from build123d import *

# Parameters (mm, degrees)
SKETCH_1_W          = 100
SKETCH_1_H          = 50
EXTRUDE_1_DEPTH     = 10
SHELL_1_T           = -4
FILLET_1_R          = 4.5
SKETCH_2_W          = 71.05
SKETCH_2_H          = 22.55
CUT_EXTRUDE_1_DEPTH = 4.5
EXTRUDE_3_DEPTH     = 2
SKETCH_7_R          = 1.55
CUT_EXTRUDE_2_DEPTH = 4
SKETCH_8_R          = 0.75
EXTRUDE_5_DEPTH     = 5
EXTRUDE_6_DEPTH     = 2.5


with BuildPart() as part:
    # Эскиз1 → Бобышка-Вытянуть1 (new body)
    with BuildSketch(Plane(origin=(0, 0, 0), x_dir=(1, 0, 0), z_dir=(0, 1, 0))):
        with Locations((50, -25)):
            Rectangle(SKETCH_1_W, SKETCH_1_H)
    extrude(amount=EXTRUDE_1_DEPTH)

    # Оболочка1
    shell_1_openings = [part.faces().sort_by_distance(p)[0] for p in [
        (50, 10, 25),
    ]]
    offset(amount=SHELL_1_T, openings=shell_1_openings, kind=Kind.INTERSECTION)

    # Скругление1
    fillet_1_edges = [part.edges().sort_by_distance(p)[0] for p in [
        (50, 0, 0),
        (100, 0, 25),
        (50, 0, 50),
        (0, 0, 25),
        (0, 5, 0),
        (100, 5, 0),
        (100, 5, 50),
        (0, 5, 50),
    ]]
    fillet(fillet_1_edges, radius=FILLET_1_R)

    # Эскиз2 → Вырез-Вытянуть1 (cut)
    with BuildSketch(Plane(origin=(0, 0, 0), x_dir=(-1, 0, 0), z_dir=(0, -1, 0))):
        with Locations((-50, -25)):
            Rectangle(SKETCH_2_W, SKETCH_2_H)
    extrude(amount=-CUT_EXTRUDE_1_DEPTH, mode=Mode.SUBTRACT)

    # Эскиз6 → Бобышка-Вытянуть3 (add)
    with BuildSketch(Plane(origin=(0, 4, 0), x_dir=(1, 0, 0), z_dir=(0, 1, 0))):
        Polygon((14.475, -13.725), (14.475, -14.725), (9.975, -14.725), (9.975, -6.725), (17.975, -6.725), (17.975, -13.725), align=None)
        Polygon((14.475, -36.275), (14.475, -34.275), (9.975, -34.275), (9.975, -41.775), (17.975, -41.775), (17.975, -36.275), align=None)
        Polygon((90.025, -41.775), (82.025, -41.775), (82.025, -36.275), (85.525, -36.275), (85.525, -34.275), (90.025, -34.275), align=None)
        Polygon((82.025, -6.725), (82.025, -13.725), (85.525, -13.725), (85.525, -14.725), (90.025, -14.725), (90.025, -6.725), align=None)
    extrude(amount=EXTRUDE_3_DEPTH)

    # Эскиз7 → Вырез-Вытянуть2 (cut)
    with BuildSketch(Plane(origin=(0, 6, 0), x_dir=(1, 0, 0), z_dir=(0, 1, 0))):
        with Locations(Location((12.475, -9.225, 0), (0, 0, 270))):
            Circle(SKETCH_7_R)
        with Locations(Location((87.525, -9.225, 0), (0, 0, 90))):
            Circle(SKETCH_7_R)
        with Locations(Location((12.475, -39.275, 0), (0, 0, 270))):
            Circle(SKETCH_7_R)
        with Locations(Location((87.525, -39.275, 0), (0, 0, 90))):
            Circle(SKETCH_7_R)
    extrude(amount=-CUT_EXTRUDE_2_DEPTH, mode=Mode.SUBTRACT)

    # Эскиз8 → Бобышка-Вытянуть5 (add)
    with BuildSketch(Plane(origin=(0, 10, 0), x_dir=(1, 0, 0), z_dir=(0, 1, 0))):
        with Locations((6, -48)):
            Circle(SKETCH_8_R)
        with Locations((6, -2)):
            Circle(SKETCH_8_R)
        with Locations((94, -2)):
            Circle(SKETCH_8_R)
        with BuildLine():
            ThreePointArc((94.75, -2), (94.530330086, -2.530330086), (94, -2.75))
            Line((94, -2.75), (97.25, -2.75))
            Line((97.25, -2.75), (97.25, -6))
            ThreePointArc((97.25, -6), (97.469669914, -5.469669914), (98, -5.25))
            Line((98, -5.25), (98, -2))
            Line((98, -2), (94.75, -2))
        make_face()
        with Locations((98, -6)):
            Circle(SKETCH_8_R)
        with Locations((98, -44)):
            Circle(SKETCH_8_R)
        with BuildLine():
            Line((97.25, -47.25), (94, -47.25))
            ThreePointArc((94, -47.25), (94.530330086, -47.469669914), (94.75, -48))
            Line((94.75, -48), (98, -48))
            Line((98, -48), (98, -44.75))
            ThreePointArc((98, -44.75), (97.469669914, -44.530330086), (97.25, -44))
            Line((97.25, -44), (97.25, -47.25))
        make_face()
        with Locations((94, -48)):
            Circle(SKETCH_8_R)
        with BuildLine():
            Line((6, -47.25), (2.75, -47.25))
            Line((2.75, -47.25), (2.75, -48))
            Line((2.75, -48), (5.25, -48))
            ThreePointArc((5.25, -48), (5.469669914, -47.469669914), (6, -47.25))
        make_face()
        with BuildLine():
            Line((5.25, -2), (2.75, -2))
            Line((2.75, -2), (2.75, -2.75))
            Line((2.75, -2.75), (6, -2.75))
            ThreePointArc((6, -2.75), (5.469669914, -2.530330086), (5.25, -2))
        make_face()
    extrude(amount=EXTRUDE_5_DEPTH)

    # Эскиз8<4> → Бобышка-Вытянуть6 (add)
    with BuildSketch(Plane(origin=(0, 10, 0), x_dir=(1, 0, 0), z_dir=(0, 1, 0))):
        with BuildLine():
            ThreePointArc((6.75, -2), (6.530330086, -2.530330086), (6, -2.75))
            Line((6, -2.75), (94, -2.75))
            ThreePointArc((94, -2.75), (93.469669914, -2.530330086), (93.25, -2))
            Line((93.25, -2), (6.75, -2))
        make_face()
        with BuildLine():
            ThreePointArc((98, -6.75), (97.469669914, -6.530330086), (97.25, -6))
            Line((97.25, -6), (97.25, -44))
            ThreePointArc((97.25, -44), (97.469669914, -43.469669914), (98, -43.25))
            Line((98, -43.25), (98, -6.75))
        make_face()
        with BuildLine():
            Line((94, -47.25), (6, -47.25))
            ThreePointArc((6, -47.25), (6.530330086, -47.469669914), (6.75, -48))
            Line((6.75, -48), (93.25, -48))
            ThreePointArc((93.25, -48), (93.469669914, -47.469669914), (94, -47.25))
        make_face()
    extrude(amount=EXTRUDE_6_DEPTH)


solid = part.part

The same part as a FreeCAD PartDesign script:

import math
import FreeCAD as App
import Part
import Sketcher
from FreeCAD import Vector
Q = App.Units.Quantity


def edges_at(feature, points):
    """Names of the edges that pass closest to the given points."""
    edges = feature.Shape.Edges
    near = lambda p: min(range(len(edges)), key=lambda i: edges[i].distToShape(Part.Vertex(*p))[0])
    return sorted({f"Edge{near(p) + 1}" for p in points})


def faces_at(feature, points):
    """Names of the faces that lie closest to the given points."""
    faces = feature.Shape.Faces
    near = lambda p: min(range(len(faces)), key=lambda i: faces[i].distToShape(Part.Vertex(*p))[0])
    return sorted({f"Face{near(p) + 1}" for p in points})

doc = App.newDocument("Part")
body = doc.addObject("PartDesign::Body", "Body")

sketch1 = doc.addObject("Sketcher::SketchObject", "Sketch")
body.addObject(sketch1)
sketch1.AttachmentSupport = (doc.XZ_Plane, [""])
sketch1.MapMode = "FlatFace"
sketch1.addGeometry(Part.LineSegment(Vector(0, 0, 0), Vector(0, 50, 0)), False)
sketch1.addGeometry(Part.LineSegment(Vector(0, 50, 0), Vector(100, 50, 0)), False)
sketch1.addGeometry(Part.LineSegment(Vector(100, 50, 0), Vector(100, 0, 0)), False)
sketch1.addGeometry(Part.LineSegment(Vector(100, 0, 0), Vector(0, 0, 0)), False)
sketch1.addConstraint(Sketcher.Constraint("Coincident", 0, 2, 1, 1))
sketch1.addConstraint(Sketcher.Constraint("Coincident", 1, 2, 2, 1))
sketch1.addConstraint(Sketcher.Constraint("Coincident", 2, 2, 3, 1))
sketch1.addConstraint(Sketcher.Constraint("Coincident", 3, 2, 0, 1))
sketch1.addConstraint(Sketcher.Constraint("Vertical", 0))
sketch1.addConstraint(Sketcher.Constraint("Horizontal", 1))
sketch1.addConstraint(Sketcher.Constraint("Vertical", 2))
sketch1.addConstraint(Sketcher.Constraint("Horizontal", 3))
sketch1.addConstraint(Sketcher.Constraint("Coincident", 3, 2, -1, 1))
sketch1.addConstraint(Sketcher.Constraint("DistanceX", 1, 1, 1, 2, Q("100 mm")))
sketch1.addConstraint(Sketcher.Constraint("DistanceY", 0, 1, 0, 2, Q("50 mm")))
pad1 = doc.addObject("PartDesign::Pad", "Pad")
body.addObject(pad1)
pad1.Profile = sketch1
pad1.Length = 10
pad1.Reversed = True
doc.recompute()

thickness = doc.addObject("PartDesign::Thickness", "Thickness")
body.addObject(thickness)
thickness.Base = (pad1, faces_at(pad1, [(50, 10, 25)]))
thickness.Value = 4
thickness.Reversed = True
thickness.Join = "Intersection"
doc.recompute()

fillet = doc.addObject("PartDesign::Fillet", "Fillet")
body.addObject(fillet)
fillet.Base = (thickness, edges_at(thickness, [
    (50, 0, 0),
    (100, 0, 25),
    (50, 0, 50),
    (0, 0, 25),
    (0, 5, 0),
    (100, 5, 0),
    (100, 5, 50),
    (0, 5, 50),
]))
fillet.Radius = 4.5

sketch2 = doc.addObject("Sketcher::SketchObject", "Sketch001")
body.addObject(sketch2)
sketch2.AttachmentSupport = (doc.XZ_Plane, [""])
sketch2.MapMode = "FlatFace"
sketch2.addGeometry(Part.LineSegment(Vector(86, 14, 0), Vector(86, 36, 0)), False)
sketch2.addGeometry(Part.LineSegment(Vector(86, 36, 0), Vector(14, 36, 0)), False)
sketch2.addGeometry(Part.LineSegment(Vector(14, 36, 0), Vector(14, 14, 0)), False)
sketch2.addGeometry(Part.LineSegment(Vector(14, 14, 0), Vector(86, 14, 0)), False)
sketch2.addConstraint(Sketcher.Constraint("Coincident", 0, 2, 1, 1))
sketch2.addConstraint(Sketcher.Constraint("Coincident", 1, 2, 2, 1))
sketch2.addConstraint(Sketcher.Constraint("Coincident", 2, 2, 3, 1))
sketch2.addConstraint(Sketcher.Constraint("Coincident", 3, 2, 0, 1))
sketch2.addConstraint(Sketcher.Constraint("Vertical", 0))
sketch2.addConstraint(Sketcher.Constraint("Horizontal", 1))
sketch2.addConstraint(Sketcher.Constraint("Vertical", 2))
sketch2.addConstraint(Sketcher.Constraint("Horizontal", 3))
sketch2.addConstraint(Sketcher.Constraint("DistanceX", 1, 2, 1, 1, Q("71.05 mm")))
sketch2.addConstraint(Sketcher.Constraint("DistanceY", 0, 1, 0, 2, Q("22.55 mm")))
sketch2.addConstraint(Sketcher.Constraint("DistanceX", -1, 1, 0, 2, Q("85.525 mm")))
sketch2.addConstraint(Sketcher.Constraint("DistanceY", -1, 1, 0, 2, Q("36.275 mm")))
pocket1 = doc.addObject("PartDesign::Pocket", "Pocket")
body.addObject(pocket1)
pocket1.Profile = sketch2
pocket1.Length = 4.5

sketch3 = doc.addObject("Sketcher::SketchObject", "Sketch002")
body.addObject(sketch3)
sketch3.AttachmentSupport = (doc.XZ_Plane, [""])
sketch3.MapMode = "FlatFace"
sketch3.AttachmentOffset = App.Placement(Vector(0, 0, -4), App.Rotation())
sketch3.addGeometry(Part.LineSegment(Vector(14.5, 14.7, 0), Vector(14.5, 13.7, 0)), False)
sketch3.addGeometry(Part.LineSegment(Vector(14.5, 13.7, 0), Vector(18, 13.7, 0)), False)
sketch3.addGeometry(Part.LineSegment(Vector(18, 13.7, 0), Vector(18, 6.7, 0)), False)
sketch3.addGeometry(Part.LineSegment(Vector(18, 6.7, 0), Vector(10, 6.7, 0)), False)
sketch3.addGeometry(Part.LineSegment(Vector(10, 6.7, 0), Vector(10, 14.7, 0)), False)
sketch3.addGeometry(Part.LineSegment(Vector(10, 14.7, 0), Vector(14.5, 14.7, 0)), False)
sketch3.addGeometry(Part.LineSegment(Vector(14.5, 36.3, 0), Vector(14.5, 34.3, 0)), False)
sketch3.addGeometry(Part.LineSegment(Vector(14.5, 34.3, 0), Vector(10, 34.3, 0)), False)
sketch3.addGeometry(Part.LineSegment(Vector(10, 34.3, 0), Vector(10, 41.8, 0)), False)
sketch3.addGeometry(Part.LineSegment(Vector(10, 41.8, 0), Vector(18, 41.8, 0)), False)
sketch3.addGeometry(Part.LineSegment(Vector(18, 41.8, 0), Vector(18, 36.3, 0)), False)
sketch3.addGeometry(Part.LineSegment(Vector(18, 36.3, 0), Vector(14.5, 36.3, 0)), False)
sketch3.addGeometry(Part.LineSegment(Vector(82, 41.8, 0), Vector(90, 41.8, 0)), False)
sketch3.addGeometry(Part.LineSegment(Vector(90, 41.8, 0), Vector(90, 34.3, 0)), False)
sketch3.addGeometry(Part.LineSegment(Vector(90, 34.3, 0), Vector(85.5, 34.3, 0)), False)
sketch3.addGeometry(Part.LineSegment(Vector(85.5, 34.3, 0), Vector(85.5, 36.3, 0)), False)
sketch3.addGeometry(Part.LineSegment(Vector(85.5, 36.3, 0), Vector(82, 36.3, 0)), False)
sketch3.addGeometry(Part.LineSegment(Vector(82, 36.3, 0), Vector(82, 41.8, 0)), False)
sketch3.addGeometry(Part.LineSegment(Vector(82, 6.7, 0), Vector(82, 13.7, 0)), False)
sketch3.addGeometry(Part.LineSegment(Vector(82, 13.7, 0), Vector(85.5, 13.7, 0)), False)
sketch3.addGeometry(Part.LineSegment(Vector(85.5, 13.7, 0), Vector(85.5, 14.7, 0)), False)
sketch3.addGeometry(Part.LineSegment(Vector(85.5, 14.7, 0), Vector(90, 14.7, 0)), False)
sketch3.addGeometry(Part.LineSegment(Vector(90, 14.7, 0), Vector(90, 6.7, 0)), False)
sketch3.addGeometry(Part.LineSegment(Vector(90, 6.7, 0), Vector(82, 6.7, 0)), False)
sketch3.addConstraint(Sketcher.Constraint("Coincident", 0, 2, 1, 1))
sketch3.addConstraint(Sketcher.Constraint("Coincident", 1, 2, 2, 1))
sketch3.addConstraint(Sketcher.Constraint("Coincident", 2, 2, 3, 1))
sketch3.addConstraint(Sketcher.Constraint("Coincident", 3, 2, 4, 1))
sketch3.addConstraint(Sketcher.Constraint("Coincident", 4, 2, 5, 1))
sketch3.addConstraint(Sketcher.Constraint("Coincident", 5, 2, 0, 1))
sketch3.addConstraint(Sketcher.Constraint("Coincident", 6, 2, 7, 1))
sketch3.addConstraint(Sketcher.Constraint("Coincident", 7, 2, 8, 1))
sketch3.addConstraint(Sketcher.Constraint("Coincident", 8, 2, 9, 1))
sketch3.addConstraint(Sketcher.Constraint("Coincident", 9, 2, 10, 1))
sketch3.addConstraint(Sketcher.Constraint("Coincident", 10, 2, 11, 1))
sketch3.addConstraint(Sketcher.Constraint("Coincident", 11, 2, 6, 1))
sketch3.addConstraint(Sketcher.Constraint("Coincident", 12, 2, 13, 1))
sketch3.addConstraint(Sketcher.Constraint("Coincident", 13, 2, 14, 1))
sketch3.addConstraint(Sketcher.Constraint("Coincident", 14, 2, 15, 1))
sketch3.addConstraint(Sketcher.Constraint("Coincident", 15, 2, 16, 1))
sketch3.addConstraint(Sketcher.Constraint("Coincident", 16, 2, 17, 1))
sketch3.addConstraint(Sketcher.Constraint("Coincident", 17, 2, 12, 1))
sketch3.addConstraint(Sketcher.Constraint("Coincident", 18, 2, 19, 1))
sketch3.addConstraint(Sketcher.Constraint("Coincident", 19, 2, 20, 1))
sketch3.addConstraint(Sketcher.Constraint("Coincident", 20, 2, 21, 1))
sketch3.addConstraint(Sketcher.Constraint("Coincident", 21, 2, 22, 1))
sketch3.addConstraint(Sketcher.Constraint("Coincident", 22, 2, 23, 1))
sketch3.addConstraint(Sketcher.Constraint("Coincident", 23, 2, 18, 1))
sketch3.addConstraint(Sketcher.Constraint("Vertical", 0))
sketch3.addConstraint(Sketcher.Constraint("Horizontal", 1))
sketch3.addConstraint(Sketcher.Constraint("Vertical", 2))
sketch3.addConstraint(Sketcher.Constraint("Horizontal", 3))
sketch3.addConstraint(Sketcher.Constraint("Vertical", 4))
sketch3.addConstraint(Sketcher.Constraint("Horizontal", 5))
sketch3.addConstraint(Sketcher.Constraint("Vertical", 6))
sketch3.addConstraint(Sketcher.Constraint("Horizontal", 7))
sketch3.addConstraint(Sketcher.Constraint("Vertical", 8))
sketch3.addConstraint(Sketcher.Constraint("Horizontal", 9))
sketch3.addConstraint(Sketcher.Constraint("Vertical", 10))
sketch3.addConstraint(Sketcher.Constraint("Horizontal", 11))
sketch3.addConstraint(Sketcher.Constraint("Horizontal", 12))
sketch3.addConstraint(Sketcher.Constraint("Vertical", 13))
sketch3.addConstraint(Sketcher.Constraint("Horizontal", 14))
sketch3.addConstraint(Sketcher.Constraint("Vertical", 15))
sketch3.addConstraint(Sketcher.Constraint("Horizontal", 16))
sketch3.addConstraint(Sketcher.Constraint("Vertical", 17))
sketch3.addConstraint(Sketcher.Constraint("Vertical", 18))
sketch3.addConstraint(Sketcher.Constraint("Horizontal", 19))
sketch3.addConstraint(Sketcher.Constraint("Vertical", 20))
sketch3.addConstraint(Sketcher.Constraint("Horizontal", 21))
sketch3.addConstraint(Sketcher.Constraint("Vertical", 22))
sketch3.addConstraint(Sketcher.Constraint("Horizontal", 23))
sketch3.addConstraint(Sketcher.Constraint("Horizontal", 9, 2, 12, 2))
sketch3.addConstraint(Sketcher.Constraint("Horizontal", 7, 2, 13, 2))
sketch3.addConstraint(Sketcher.Constraint("Horizontal", 11, 2, 15, 2))
sketch3.addConstraint(Sketcher.Constraint("Horizontal", 1, 2, 18, 2))
sketch3.addConstraint(Sketcher.Constraint("Horizontal", 5, 2, 20, 2))
sketch3.addConstraint(Sketcher.Constraint("Horizontal", 3, 2, 22, 2))
sketch3.addConstraint(Sketcher.Constraint("Vertical", 5, 2, 6, 2))
sketch3.addConstraint(Sketcher.Constraint("Vertical", 4, 2, 7, 2))
sketch3.addConstraint(Sketcher.Constraint("Vertical", 2, 2, 9, 2))
sketch3.addConstraint(Sketcher.Constraint("Vertical", 17, 2, 18, 2))
sketch3.addConstraint(Sketcher.Constraint("Vertical", 15, 2, 19, 2))
sketch3.addConstraint(Sketcher.Constraint("Vertical", 13, 2, 21, 2))
sketch3.addConstraint(Sketcher.Constraint("Equal", 9, 12))
sketch3.addConstraint(Sketcher.Constraint("Equal", 7, 14))
sketch3.addConstraint(Sketcher.Constraint("Equal", 23, 4))
sketch3.addConstraint(Sketcher.Constraint("DistanceX", 3, 2, 3, 1, Q("8 mm")))
sketch3.addConstraint(Sketcher.Constraint("DistanceY", 0, 2, 0, 1, Q("1 mm")))
sketch3.addConstraint(Sketcher.Constraint("DistanceY", 6, 2, 6, 1, Q("2 mm")))
sketch3.addConstraint(Sketcher.Constraint("DistanceX", 1, 1, 1, 2, Q("3.5 mm")))
sketch3.addConstraint(Sketcher.Constraint("DistanceY", 8, 1, 8, 2, Q("7.5 mm")))
sketch3.addConstraint(Sketcher.Constraint("DistanceY", 5, 2, 6, 2, Q("19.55 mm")))
sketch3.addConstraint(Sketcher.Constraint("DistanceX", 9, 2, 12, 2, Q("72.05 mm")))
sketch3.addConstraint(Sketcher.Constraint("DistanceX", -1, 1, 0, 2, Q("14.475 mm")))
sketch3.addConstraint(Sketcher.Constraint("DistanceY", -1, 1, 0, 2, Q("13.725 mm")))
pad2 = doc.addObject("PartDesign::Pad", "Pad001")
body.addObject(pad2)
pad2.Profile = sketch3
pad2.Length = 2
pad2.Reversed = True

sketch4 = doc.addObject("Sketcher::SketchObject", "Sketch003")
body.addObject(sketch4)
sketch4.AttachmentSupport = (doc.XZ_Plane, [""])
sketch4.MapMode = "FlatFace"
sketch4.AttachmentOffset = App.Placement(Vector(0, 0, -6), App.Rotation())
sketch4.addGeometry(Part.Circle(Vector(12.5, 9.2, 0), Vector(0, 0, 1), 1.6), False)
sketch4.addGeometry(Part.Circle(Vector(87.5, 9.2, 0), Vector(0, 0, 1), 1.6), False)
sketch4.addGeometry(Part.Circle(Vector(12.5, 39.3, 0), Vector(0, 0, 1), 1.6), False)
sketch4.addGeometry(Part.Circle(Vector(87.5, 39.3, 0), Vector(0, 0, 1), 1.6), False)
sketch4.addConstraint(Sketcher.Constraint("Equal", 0, 1))
sketch4.addConstraint(Sketcher.Constraint("Equal", 1, 2))
sketch4.addConstraint(Sketcher.Constraint("Equal", 2, 3))
sketch4.addConstraint(Sketcher.Constraint("Horizontal", 0, 3, 1, 3))
sketch4.addConstraint(Sketcher.Constraint("Horizontal", 2, 3, 3, 3))
sketch4.addConstraint(Sketcher.Constraint("Vertical", 0, 3, 2, 3))
sketch4.addConstraint(Sketcher.Constraint("Vertical", 1, 3, 3, 3))
sketch4.addConstraint(Sketcher.Constraint("Diameter", 0, Q("3.1 mm")))
sketch4.addConstraint(Sketcher.Constraint("DistanceX", 0, 3, 1, 3, Q("75.05 mm")))
sketch4.addConstraint(Sketcher.Constraint("DistanceY", 0, 3, 2, 3, Q("30.05 mm")))
sketch4.addConstraint(Sketcher.Constraint("DistanceX", -1, 1, 0, 3, Q("12.475 mm")))
sketch4.addConstraint(Sketcher.Constraint("DistanceY", -1, 1, 0, 3, Q("9.225 mm")))
pocket2 = doc.addObject("PartDesign::Pocket", "Pocket001")
body.addObject(pocket2)
pocket2.Profile = sketch4
pocket2.Length = 4
pocket2.Reversed = True

sketch5 = doc.addObject("Sketcher::SketchObject", "Sketch004")
body.addObject(sketch5)
sketch5.AttachmentSupport = (doc.XZ_Plane, [""])
sketch5.MapMode = "FlatFace"
sketch5.AttachmentOffset = App.Placement(Vector(0, 0, -10), App.Rotation())
sketch5.addGeometry(Part.LineSegment(Vector(6, 47.2, 0), Vector(2.8, 47.2, 0)), False)
sketch5.addGeometry(Part.LineSegment(Vector(2.8, 47.2, 0), Vector(2.8, 48, 0)), False)
sketch5.addGeometry(Part.LineSegment(Vector(2.8, 48, 0), Vector(5.2, 48, 0)), False)
sketch5.addGeometry(Part.ArcOfCircle(Part.Circle(Vector(6, 48, 0), Vector(0, 0, 1), 0.8), math.radians(-90), math.radians(180)), False)
sketch5.addGeometry(Part.LineSegment(Vector(5.2, 2, 0), Vector(2.8, 2, 0)), False)
sketch5.addGeometry(Part.LineSegment(Vector(2.8, 2, 0), Vector(2.8, 2.8, 0)), False)
sketch5.addGeometry(Part.LineSegment(Vector(2.8, 2.8, 0), Vector(6, 2.8, 0)), False)
sketch5.addGeometry(Part.ArcOfCircle(Part.Circle(Vector(6, 2, 0), Vector(0, 0, 1), 0.8), math.radians(180), math.radians(450)), False)
sketch5.addGeometry(Part.ArcOfCircle(Part.Circle(Vector(94, 2, 0), Vector(0, 0, 1), 0.8), math.radians(90), math.radians(360)), False)
sketch5.addGeometry(Part.LineSegment(Vector(94, 2.8, 0), Vector(97.2, 2.8, 0)), False)
sketch5.addGeometry(Part.LineSegment(Vector(97.2, 2.8, 0), Vector(97.2, 6, 0)), False)
sketch5.addGeometry(Part.ArcOfCircle(Part.Circle(Vector(98, 6, 0), Vector(0, 0, 1), 0.8), math.radians(-90), math.radians(180)), False)
sketch5.addGeometry(Part.LineSegment(Vector(98, 5.2, 0), Vector(98, 2, 0)), False)
sketch5.addGeometry(Part.LineSegment(Vector(98, 2, 0), Vector(94.8, 2, 0)), False)
sketch5.addGeometry(Part.LineSegment(Vector(97.2, 44, 0), Vector(97.2, 47.2, 0)), False)
sketch5.addGeometry(Part.LineSegment(Vector(97.2, 47.2, 0), Vector(94, 47.2, 0)), False)
sketch5.addGeometry(Part.ArcOfCircle(Part.Circle(Vector(94, 48, 0), Vector(0, 0, 1), 0.8), math.radians(0), math.radians(270)), False)
sketch5.addGeometry(Part.LineSegment(Vector(94.8, 48, 0), Vector(98, 48, 0)), False)
sketch5.addGeometry(Part.LineSegment(Vector(98, 48, 0), Vector(98, 44.8, 0)), False)
sketch5.addGeometry(Part.ArcOfCircle(Part.Circle(Vector(98, 44, 0), Vector(0, 0, 1), 0.8), math.radians(180), math.radians(450)), False)
sketch5.addConstraint(Sketcher.Constraint("Coincident", 0, 2, 1, 1))
sketch5.addConstraint(Sketcher.Constraint("Coincident", 1, 2, 2, 1))
sketch5.addConstraint(Sketcher.Constraint("Coincident", 2, 2, 3, 2))
sketch5.addConstraint(Sketcher.Constraint("Tangent", 3, 1, 0, 1))
sketch5.addConstraint(Sketcher.Constraint("Coincident", 4, 2, 5, 1))
sketch5.addConstraint(Sketcher.Constraint("Coincident", 5, 2, 6, 1))
sketch5.addConstraint(Sketcher.Constraint("Tangent", 6, 2, 7, 2))
sketch5.addConstraint(Sketcher.Constraint("Coincident", 7, 1, 4, 1))
sketch5.addConstraint(Sketcher.Constraint("Tangent", 8, 1, 9, 1))
sketch5.addConstraint(Sketcher.Constraint("Coincident", 9, 2, 10, 1))
sketch5.addConstraint(Sketcher.Constraint("Tangent", 10, 2, 11, 2))
sketch5.addConstraint(Sketcher.Constraint("Coincident", 11, 1, 12, 1))
sketch5.addConstraint(Sketcher.Constraint("Coincident", 12, 2, 13, 1))
sketch5.addConstraint(Sketcher.Constraint("Coincident", 13, 2, 8, 2))
sketch5.addConstraint(Sketcher.Constraint("Coincident", 14, 2, 15, 1))
sketch5.addConstraint(Sketcher.Constraint("Tangent", 15, 2, 16, 2))
sketch5.addConstraint(Sketcher.Constraint("Coincident", 16, 1, 17, 1))
sketch5.addConstraint(Sketcher.Constraint("Coincident", 17, 2, 18, 1))
sketch5.addConstraint(Sketcher.Constraint("Coincident", 18, 2, 19, 2))
sketch5.addConstraint(Sketcher.Constraint("Tangent", 19, 1, 14, 1))
sketch5.addConstraint(Sketcher.Constraint("Horizontal", 0))
sketch5.addConstraint(Sketcher.Constraint("Vertical", 1))
sketch5.addConstraint(Sketcher.Constraint("Horizontal", 2))
sketch5.addConstraint(Sketcher.Constraint("Horizontal", 4))
sketch5.addConstraint(Sketcher.Constraint("Vertical", 5))
sketch5.addConstraint(Sketcher.Constraint("Horizontal", 6))
sketch5.addConstraint(Sketcher.Constraint("Horizontal", 9))
sketch5.addConstraint(Sketcher.Constraint("Vertical", 10))
sketch5.addConstraint(Sketcher.Constraint("Vertical", 12))
sketch5.addConstraint(Sketcher.Constraint("Horizontal", 13))
sketch5.addConstraint(Sketcher.Constraint("Vertical", 14))
sketch5.addConstraint(Sketcher.Constraint("Horizontal", 15))
sketch5.addConstraint(Sketcher.Constraint("Horizontal", 17))
sketch5.addConstraint(Sketcher.Constraint("Vertical", 18))
sketch5.addConstraint(Sketcher.Constraint("Equal", 3, 7))
sketch5.addConstraint(Sketcher.Constraint("Equal", 7, 8))
sketch5.addConstraint(Sketcher.Constraint("Equal", 8, 11))
sketch5.addConstraint(Sketcher.Constraint("Equal", 11, 16))
sketch5.addConstraint(Sketcher.Constraint("Equal", 16, 19))
sketch5.addConstraint(Sketcher.Constraint("Horizontal", 7, 3, 8, 3))
sketch5.addConstraint(Sketcher.Constraint("Horizontal", 3, 3, 16, 3))
sketch5.addConstraint(Sketcher.Constraint("Horizontal", 16, 3, 1, 2))
sketch5.addConstraint(Sketcher.Constraint("Horizontal", 8, 3, 4, 2))
sketch5.addConstraint(Sketcher.Constraint("Horizontal", 7, 1, 12, 2))
sketch5.addConstraint(Sketcher.Constraint("Horizontal", 2, 2, 16, 1))
sketch5.addConstraint(Sketcher.Constraint("Vertical", 3, 3, 7, 3))
sketch5.addConstraint(Sketcher.Constraint("Vertical", 8, 3, 16, 3))
sketch5.addConstraint(Sketcher.Constraint("Vertical", 11, 3, 19, 3))
sketch5.addConstraint(Sketcher.Constraint("Vertical", 1, 2, 4, 2))
sketch5.addConstraint(Sketcher.Constraint("Vertical", 19, 3, 11, 1))
sketch5.addConstraint(Sketcher.Constraint("Vertical", 12, 2, 17, 2))
sketch5.addConstraint(Sketcher.Constraint("Equal", 6, 9))
sketch5.addConstraint(Sketcher.Constraint("Equal", 17, 10))
sketch5.addConstraint(Sketcher.Constraint("Equal", 12, 14))
sketch5.addConstraint(Sketcher.Constraint("Radius", 3, Q("0.75 mm")))
sketch5.addConstraint(Sketcher.Constraint("DistanceX", 2, 1, 2, 2, Q("2.5 mm")))
sketch5.addConstraint(Sketcher.Constraint("DistanceX", -1, 1, 3, 3, Q("6 mm")))
sketch5.addConstraint(Sketcher.Constraint("DistanceY", -1, 1, 3, 3, Q("48 mm")))
sketch5.addConstraint(Sketcher.Constraint("DistanceY", -1, 1, 7, 3, Q("2 mm")))
sketch5.addConstraint(Sketcher.Constraint("DistanceX", -1, 1, 8, 3, Q("94 mm")))
pad3 = doc.addObject("PartDesign::Pad", "Pad002")
body.addObject(pad3)
pad3.Profile = sketch5
pad3.Length = 5
pad3.Reversed = True

sketch6 = doc.addObject("Sketcher::SketchObject", "Sketch005")
body.addObject(sketch6)
sketch6.AttachmentSupport = (doc.XZ_Plane, [""])
sketch6.MapMode = "FlatFace"
sketch6.AttachmentOffset = App.Placement(Vector(0, 0, -10), App.Rotation())
sketch6.addGeometry(Part.ArcOfCircle(Part.Circle(Vector(6, 2, 0), Vector(0, 0, 1), 0.8), math.radians(0), math.radians(90)), False)
sketch6.addGeometry(Part.LineSegment(Vector(6, 2.8, 0), Vector(94, 2.8, 0)), False)
sketch6.addGeometry(Part.ArcOfCircle(Part.Circle(Vector(94, 2, 0), Vector(0, 0, 1), 0.8), math.radians(90), math.radians(180)), False)
sketch6.addGeometry(Part.LineSegment(Vector(93.2, 2, 0), Vector(6.8, 2, 0)), False)
sketch6.addGeometry(Part.ArcOfCircle(Part.Circle(Vector(98, 6, 0), Vector(0, 0, 1), 0.8), math.radians(90), math.radians(180)), False)
sketch6.addGeometry(Part.LineSegment(Vector(97.2, 6, 0), Vector(97.2, 44, 0)), False)
sketch6.addGeometry(Part.ArcOfCircle(Part.Circle(Vector(98, 44, 0), Vector(0, 0, 1), 0.8), math.radians(180), math.radians(270)), False)
sketch6.addGeometry(Part.LineSegment(Vector(98, 43.2, 0), Vector(98, 6.8, 0)), False)
sketch6.addGeometry(Part.LineSegment(Vector(94, 47.2, 0), Vector(6, 47.2, 0)), False)
sketch6.addGeometry(Part.ArcOfCircle(Part.Circle(Vector(6, 48, 0), Vector(0, 0, 1), 0.8), math.radians(-90), math.radians(0)), False)
sketch6.addGeometry(Part.LineSegment(Vector(6.8, 48, 0), Vector(93.2, 48, 0)), False)
sketch6.addGeometry(Part.ArcOfCircle(Part.Circle(Vector(94, 48, 0), Vector(0, 0, 1), 0.8), math.radians(180), math.radians(270)), False)
sketch6.addConstraint(Sketcher.Constraint("Tangent", 0, 2, 1, 1))
sketch6.addConstraint(Sketcher.Constraint("Tangent", 1, 2, 2, 1))
sketch6.addConstraint(Sketcher.Constraint("Coincident", 2, 2, 3, 1))
sketch6.addConstraint(Sketcher.Constraint("Coincident", 3, 2, 0, 1))
sketch6.addConstraint(Sketcher.Constraint("Tangent", 4, 2, 5, 1))
sketch6.addConstraint(Sketcher.Constraint("Tangent", 5, 2, 6, 1))
sketch6.addConstraint(Sketcher.Constraint("Coincident", 6, 2, 7, 1))
sketch6.addConstraint(Sketcher.Constraint("Coincident", 7, 2, 4, 1))
sketch6.addConstraint(Sketcher.Constraint("Tangent", 8, 2, 9, 1))
sketch6.addConstraint(Sketcher.Constraint("Coincident", 9, 2, 10, 1))
sketch6.addConstraint(Sketcher.Constraint("Coincident", 10, 2, 11, 1))
sketch6.addConstraint(Sketcher.Constraint("Tangent", 11, 2, 8, 1))
sketch6.addConstraint(Sketcher.Constraint("Horizontal", 1))
sketch6.addConstraint(Sketcher.Constraint("Horizontal", 3))
sketch6.addConstraint(Sketcher.Constraint("Vertical", 5))
sketch6.addConstraint(Sketcher.Constraint("Vertical", 7))
sketch6.addConstraint(Sketcher.Constraint("Horizontal", 8))
sketch6.addConstraint(Sketcher.Constraint("Horizontal", 10))
sketch6.addConstraint(Sketcher.Constraint("Equal", 0, 2))
sketch6.addConstraint(Sketcher.Constraint("Equal", 2, 4))
sketch6.addConstraint(Sketcher.Constraint("Equal", 4, 6))
sketch6.addConstraint(Sketcher.Constraint("Equal", 6, 9))
sketch6.addConstraint(Sketcher.Constraint("Equal", 9, 11))
sketch6.addConstraint(Sketcher.Constraint("Horizontal", 0, 3, 2, 2))
sketch6.addConstraint(Sketcher.Constraint("Horizontal", 11, 3, 9, 2))
sketch6.addConstraint(Sketcher.Constraint("Vertical", 0, 3, 9, 3))
sketch6.addConstraint(Sketcher.Constraint("Vertical", 2, 3, 11, 3))
sketch6.addConstraint(Sketcher.Constraint("Vertical", 4, 3, 6, 2))
sketch6.addConstraint(Sketcher.Constraint("DistanceX", 1, 1, 1, 2, Q("88 mm")))
sketch6.addConstraint(Sketcher.Constraint("DistanceY", 5, 1, 5, 2, Q("38 mm")))
sketch6.addConstraint(Sketcher.Constraint("Radius", 0, Q("0.75 mm")))
sketch6.addConstraint(Sketcher.Constraint("DistanceX", -1, 1, 0, 3, Q("6 mm")))
sketch6.addConstraint(Sketcher.Constraint("DistanceY", -1, 1, 0, 3, Q("2 mm")))
sketch6.addConstraint(Sketcher.Constraint("DistanceX", -1, 1, 4, 3, Q("98 mm")))
sketch6.addConstraint(Sketcher.Constraint("DistanceY", -1, 1, 4, 3, Q("6 mm")))
sketch6.addConstraint(Sketcher.Constraint("DistanceY", -1, 1, 9, 3, Q("48 mm")))
pad4 = doc.addObject("PartDesign::Pad", "Pad003")
body.addObject(pad4)
pad4.Profile = sketch6
pad4.Length = 2.5
pad4.Reversed = True

doc.recompute()
